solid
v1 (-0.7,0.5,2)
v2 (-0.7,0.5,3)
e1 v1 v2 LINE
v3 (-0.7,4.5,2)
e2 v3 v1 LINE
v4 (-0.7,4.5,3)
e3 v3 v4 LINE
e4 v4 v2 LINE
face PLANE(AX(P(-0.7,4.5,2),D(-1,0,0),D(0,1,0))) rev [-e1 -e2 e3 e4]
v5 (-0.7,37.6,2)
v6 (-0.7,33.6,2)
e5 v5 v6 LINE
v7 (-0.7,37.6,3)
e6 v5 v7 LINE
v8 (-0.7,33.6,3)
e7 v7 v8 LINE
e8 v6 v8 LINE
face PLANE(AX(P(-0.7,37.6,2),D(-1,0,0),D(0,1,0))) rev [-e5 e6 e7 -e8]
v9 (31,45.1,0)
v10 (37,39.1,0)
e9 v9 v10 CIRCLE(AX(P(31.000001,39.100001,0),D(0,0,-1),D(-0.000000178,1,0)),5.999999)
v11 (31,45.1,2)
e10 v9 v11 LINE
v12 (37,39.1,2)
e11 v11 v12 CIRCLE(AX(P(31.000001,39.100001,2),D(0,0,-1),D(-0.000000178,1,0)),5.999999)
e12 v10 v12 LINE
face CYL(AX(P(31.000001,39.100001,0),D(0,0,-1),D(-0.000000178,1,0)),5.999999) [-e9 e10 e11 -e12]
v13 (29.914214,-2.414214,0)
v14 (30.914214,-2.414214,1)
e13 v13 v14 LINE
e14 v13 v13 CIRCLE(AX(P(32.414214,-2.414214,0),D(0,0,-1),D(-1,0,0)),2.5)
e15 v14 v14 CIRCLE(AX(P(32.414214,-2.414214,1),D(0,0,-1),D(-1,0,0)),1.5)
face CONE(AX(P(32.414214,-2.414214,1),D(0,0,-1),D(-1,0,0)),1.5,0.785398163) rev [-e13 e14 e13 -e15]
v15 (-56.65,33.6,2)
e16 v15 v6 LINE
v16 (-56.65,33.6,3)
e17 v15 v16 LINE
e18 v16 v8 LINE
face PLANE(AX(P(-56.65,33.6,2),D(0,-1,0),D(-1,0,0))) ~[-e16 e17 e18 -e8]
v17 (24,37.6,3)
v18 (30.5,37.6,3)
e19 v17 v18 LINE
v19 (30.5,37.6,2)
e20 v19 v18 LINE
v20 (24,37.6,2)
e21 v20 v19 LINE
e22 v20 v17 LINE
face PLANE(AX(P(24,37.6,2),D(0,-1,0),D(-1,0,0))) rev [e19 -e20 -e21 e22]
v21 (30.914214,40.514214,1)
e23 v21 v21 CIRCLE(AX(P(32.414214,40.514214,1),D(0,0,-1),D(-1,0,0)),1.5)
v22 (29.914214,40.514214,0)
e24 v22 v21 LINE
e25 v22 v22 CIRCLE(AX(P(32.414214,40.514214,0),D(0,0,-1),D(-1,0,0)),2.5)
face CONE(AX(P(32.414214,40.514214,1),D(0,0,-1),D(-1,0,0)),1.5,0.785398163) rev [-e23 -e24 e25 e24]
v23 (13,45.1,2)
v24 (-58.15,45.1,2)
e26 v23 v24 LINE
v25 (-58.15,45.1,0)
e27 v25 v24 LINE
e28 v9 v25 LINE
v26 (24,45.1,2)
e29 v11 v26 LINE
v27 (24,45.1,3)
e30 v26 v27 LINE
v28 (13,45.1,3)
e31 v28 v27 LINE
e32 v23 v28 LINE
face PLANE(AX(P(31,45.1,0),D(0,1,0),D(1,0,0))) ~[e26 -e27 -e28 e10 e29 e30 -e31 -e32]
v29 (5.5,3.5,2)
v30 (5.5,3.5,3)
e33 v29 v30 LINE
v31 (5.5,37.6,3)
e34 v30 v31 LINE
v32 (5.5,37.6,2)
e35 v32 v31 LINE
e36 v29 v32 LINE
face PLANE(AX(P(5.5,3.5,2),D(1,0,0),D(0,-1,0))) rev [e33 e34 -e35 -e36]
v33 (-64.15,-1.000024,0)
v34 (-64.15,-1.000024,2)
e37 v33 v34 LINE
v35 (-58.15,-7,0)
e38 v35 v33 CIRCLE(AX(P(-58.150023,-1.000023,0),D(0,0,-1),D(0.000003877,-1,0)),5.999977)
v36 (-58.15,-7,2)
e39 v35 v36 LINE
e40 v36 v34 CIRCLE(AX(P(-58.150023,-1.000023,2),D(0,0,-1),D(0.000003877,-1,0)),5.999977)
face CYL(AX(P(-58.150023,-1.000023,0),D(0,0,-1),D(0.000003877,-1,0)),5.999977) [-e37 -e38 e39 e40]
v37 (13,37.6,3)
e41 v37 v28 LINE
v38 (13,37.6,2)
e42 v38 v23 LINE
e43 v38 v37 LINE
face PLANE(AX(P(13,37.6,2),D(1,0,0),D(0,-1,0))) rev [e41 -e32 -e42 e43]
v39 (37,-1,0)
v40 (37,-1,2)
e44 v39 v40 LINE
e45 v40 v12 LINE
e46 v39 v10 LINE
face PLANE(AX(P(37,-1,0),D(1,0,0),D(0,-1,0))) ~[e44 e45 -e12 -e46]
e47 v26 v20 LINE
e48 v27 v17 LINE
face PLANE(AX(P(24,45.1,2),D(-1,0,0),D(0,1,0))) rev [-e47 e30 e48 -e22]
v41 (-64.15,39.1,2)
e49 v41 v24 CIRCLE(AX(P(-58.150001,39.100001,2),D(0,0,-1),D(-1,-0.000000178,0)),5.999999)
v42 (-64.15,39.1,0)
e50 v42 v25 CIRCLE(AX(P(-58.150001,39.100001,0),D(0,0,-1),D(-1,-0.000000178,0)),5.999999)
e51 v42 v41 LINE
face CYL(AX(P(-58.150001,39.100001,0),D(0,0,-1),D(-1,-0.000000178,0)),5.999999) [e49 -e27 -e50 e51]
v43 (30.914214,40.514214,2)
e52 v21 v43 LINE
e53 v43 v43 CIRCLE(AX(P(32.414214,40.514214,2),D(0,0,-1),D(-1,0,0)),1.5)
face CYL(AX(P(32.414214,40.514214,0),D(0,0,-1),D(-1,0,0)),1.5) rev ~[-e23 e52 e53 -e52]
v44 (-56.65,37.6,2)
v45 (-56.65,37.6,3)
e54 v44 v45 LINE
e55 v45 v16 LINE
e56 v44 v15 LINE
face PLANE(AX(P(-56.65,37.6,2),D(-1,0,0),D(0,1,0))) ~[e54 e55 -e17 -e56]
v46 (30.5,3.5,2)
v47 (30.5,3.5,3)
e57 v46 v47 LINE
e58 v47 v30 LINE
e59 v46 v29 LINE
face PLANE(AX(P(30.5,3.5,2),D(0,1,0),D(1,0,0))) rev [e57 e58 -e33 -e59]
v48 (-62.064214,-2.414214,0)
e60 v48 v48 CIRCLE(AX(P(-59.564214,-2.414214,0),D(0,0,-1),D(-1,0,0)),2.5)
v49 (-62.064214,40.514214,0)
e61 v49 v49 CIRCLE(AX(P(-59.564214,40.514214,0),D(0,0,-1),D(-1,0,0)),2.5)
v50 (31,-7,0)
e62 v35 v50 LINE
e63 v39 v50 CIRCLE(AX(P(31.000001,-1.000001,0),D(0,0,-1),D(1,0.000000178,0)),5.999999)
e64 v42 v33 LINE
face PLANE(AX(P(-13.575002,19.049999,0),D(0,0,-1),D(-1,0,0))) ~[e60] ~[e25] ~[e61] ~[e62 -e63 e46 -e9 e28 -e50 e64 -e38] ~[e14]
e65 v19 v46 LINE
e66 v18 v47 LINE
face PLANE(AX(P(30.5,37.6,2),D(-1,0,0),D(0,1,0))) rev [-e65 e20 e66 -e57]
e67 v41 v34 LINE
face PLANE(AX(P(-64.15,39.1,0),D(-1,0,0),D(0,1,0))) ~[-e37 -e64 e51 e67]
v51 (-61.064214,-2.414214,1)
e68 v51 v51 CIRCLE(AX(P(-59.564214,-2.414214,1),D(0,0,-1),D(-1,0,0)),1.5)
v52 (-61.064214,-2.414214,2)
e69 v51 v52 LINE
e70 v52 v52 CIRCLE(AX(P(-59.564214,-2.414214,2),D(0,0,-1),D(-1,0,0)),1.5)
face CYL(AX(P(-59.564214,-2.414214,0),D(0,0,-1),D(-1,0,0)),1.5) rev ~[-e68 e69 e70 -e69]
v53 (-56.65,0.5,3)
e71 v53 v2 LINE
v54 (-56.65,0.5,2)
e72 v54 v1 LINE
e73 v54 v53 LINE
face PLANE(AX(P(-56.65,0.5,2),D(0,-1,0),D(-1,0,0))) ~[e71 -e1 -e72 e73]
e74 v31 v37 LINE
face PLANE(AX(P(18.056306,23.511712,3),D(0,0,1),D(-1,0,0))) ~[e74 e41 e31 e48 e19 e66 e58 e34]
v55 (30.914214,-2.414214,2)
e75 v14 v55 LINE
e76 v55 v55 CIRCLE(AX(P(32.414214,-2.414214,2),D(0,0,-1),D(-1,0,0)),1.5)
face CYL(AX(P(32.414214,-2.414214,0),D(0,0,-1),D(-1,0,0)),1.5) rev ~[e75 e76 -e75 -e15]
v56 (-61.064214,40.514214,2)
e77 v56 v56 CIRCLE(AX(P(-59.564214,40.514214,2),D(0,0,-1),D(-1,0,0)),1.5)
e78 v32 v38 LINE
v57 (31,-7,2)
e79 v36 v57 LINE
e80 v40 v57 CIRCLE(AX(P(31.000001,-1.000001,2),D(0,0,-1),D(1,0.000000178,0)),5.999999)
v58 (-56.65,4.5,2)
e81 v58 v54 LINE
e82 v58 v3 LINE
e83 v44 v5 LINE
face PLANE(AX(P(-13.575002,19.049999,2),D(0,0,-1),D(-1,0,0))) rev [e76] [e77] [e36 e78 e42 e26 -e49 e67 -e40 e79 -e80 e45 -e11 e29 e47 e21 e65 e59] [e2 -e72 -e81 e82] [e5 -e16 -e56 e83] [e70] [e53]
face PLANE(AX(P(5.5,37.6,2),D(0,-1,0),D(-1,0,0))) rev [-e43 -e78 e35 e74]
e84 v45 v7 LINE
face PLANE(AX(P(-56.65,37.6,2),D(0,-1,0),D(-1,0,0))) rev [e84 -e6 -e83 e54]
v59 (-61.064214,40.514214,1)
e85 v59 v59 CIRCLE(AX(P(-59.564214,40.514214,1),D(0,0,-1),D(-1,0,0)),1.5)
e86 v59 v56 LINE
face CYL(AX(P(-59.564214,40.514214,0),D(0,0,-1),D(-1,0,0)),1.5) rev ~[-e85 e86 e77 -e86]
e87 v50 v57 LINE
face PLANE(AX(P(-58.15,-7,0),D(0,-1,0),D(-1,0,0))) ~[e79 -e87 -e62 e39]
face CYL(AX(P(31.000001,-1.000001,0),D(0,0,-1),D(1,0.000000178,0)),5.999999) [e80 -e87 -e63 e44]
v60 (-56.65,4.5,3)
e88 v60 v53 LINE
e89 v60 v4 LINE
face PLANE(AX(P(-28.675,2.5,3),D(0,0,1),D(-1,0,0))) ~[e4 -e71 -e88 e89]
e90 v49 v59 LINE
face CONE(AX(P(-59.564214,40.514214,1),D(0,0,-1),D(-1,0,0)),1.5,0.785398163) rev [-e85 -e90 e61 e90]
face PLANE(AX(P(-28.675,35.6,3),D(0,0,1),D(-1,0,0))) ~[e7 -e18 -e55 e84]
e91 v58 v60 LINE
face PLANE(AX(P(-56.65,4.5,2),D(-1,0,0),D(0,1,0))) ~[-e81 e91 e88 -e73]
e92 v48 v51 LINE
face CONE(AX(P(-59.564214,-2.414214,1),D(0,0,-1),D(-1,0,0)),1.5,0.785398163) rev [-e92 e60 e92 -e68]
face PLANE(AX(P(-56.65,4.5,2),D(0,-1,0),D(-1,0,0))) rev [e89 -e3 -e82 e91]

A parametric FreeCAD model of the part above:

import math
import FreeCAD as App
import Part
import Sketcher
from FreeCAD import Vector
Q = App.Units.Quantity


def edges_at(feature, points):
    """Names of the edges that pass closest to the given points."""
    edges = feature.Shape.Edges
    near = lambda p: min(range(len(edges)), key=lambda i: edges[i].distToShape(Part.Vertex(*p))[0])
    return sorted({f"Edge{near(p) + 1}" for p in points})

doc = App.newDocument("Part")
body = doc.addObject("PartDesign::Body", "Body")

# Sketch on XY plane
sketch1 = body.newObject("Sketcher::SketchObject", "Sketch")
sketch1.AttachmentSupport = (doc.getObject("XY_Plane"), [""])
sketch1.MapMode = "FlatFace"
sketch1.addGeometry(Part.LineSegment(Vector(-58.1, 45.1, 0), Vector(31, 45.1, 0)), False)
sketch1.addGeometry(Part.ArcOfCircle(Part.Circle(Vector(31, 39.1, 0), Vector(0, 0, 1), 6), math.radians(0), math.radians(90)), False)
sketch1.addGeometry(Part.LineSegment(Vector(37, 39.1, 0), Vector(37, -1, 0)), False)
sketch1.addGeometry(Part.ArcOfCircle(Part.Circle(Vector(31, -1, 0), Vector(0, 0, 1), 6), math.radians(-90), math.radians(0)), False)
sketch1.addGeometry(Part.LineSegment(Vector(31, -7, 0), Vector(-58.1, -7, 0)), False)
sketch1.addGeometry(Part.ArcOfCircle(Part.Circle(Vector(-58.2, -1, 0), Vector(0, 0, 1), 6), math.radians(-180), math.radians(-90)), False)
sketch1.addGeometry(Part.LineSegment(Vector(-64.2, -1, 0), Vector(-64.2, 39.1, 0)), False)
sketch1.addGeometry(Part.ArcOfCircle(Part.Circle(Vector(-58.2, 39.1, 0), Vector(0, 0, 1), 6), math.radians(90), math.radians(180)), False)
sketch1.addGeometry(Part.Circle(Vector(-59.6, -2.4, 0), Vector(0, 0, 1), 1.5), False)
sketch1.addGeometry(Part.Circle(Vector(32.4, -2.4, 0), Vector(0, 0, 1), 1.5), False)
sketch1.addGeometry(Part.Circle(Vector(-59.6, 40.5, 0), Vector(0, 0, 1), 1.5), False)
sketch1.addGeometry(Part.Circle(Vector(32.4, 40.5, 0), Vector(0, 0, 1), 1.5), False)
sketch1.addConstraint(Sketcher.Constraint("Tangent", 0, 2, 1, 2))
sketch1.addConstraint(Sketcher.Constraint("Tangent", 1, 1, 2, 1))
sketch1.addConstraint(Sketcher.Constraint("Tangent", 2, 2, 3, 2))
sketch1.addConstraint(Sketcher.Constraint("Tangent", 3, 1, 4, 1))
sketch1.addConstraint(Sketcher.Constraint("Coincident", 4, 2, 5, 2))
sketch1.addConstraint(Sketcher.Constraint("Tangent", 5, 1, 6, 1))
sketch1.addConstraint(Sketcher.Constraint("Tangent", 6, 2, 7, 2))
sketch1.addConstraint(Sketcher.Constraint("Tangent", 7, 1, 0, 1))
sketch1.addConstraint(Sketcher.Constraint("Horizontal", 0))
sketch1.addConstraint(Sketcher.Constraint("Vertical", 2))
sketch1.addConstraint(Sketcher.Constraint("Horizontal", 4))
sketch1.addConstraint(Sketcher.Constraint("Vertical", 6))
sketch1.addConstraint(Sketcher.Constraint("Equal", 1, 3))
sketch1.addConstraint(Sketcher.Constraint("Equal", 3, 7))
sketch1.addConstraint(Sketcher.Constraint("Equal", 8, 9))
sketch1.addConstraint(Sketcher.Constraint("Equal", 9, 10))
sketch1.addConstraint(Sketcher.Constraint("Equal", 10, 11))
sketch1.addConstraint(Sketcher.Constraint("Horizontal", 8, 3, 9, 3))
sketch1.addConstraint(Sketcher.Constraint("Horizontal", 10, 3, 11, 3))
sketch1.addConstraint(Sketcher.Constraint("Vertical", 8, 3, 10, 3))
sketch1.addConstraint(Sketcher.Constraint("Vertical", 9, 3, 11, 3))
sketch1.addConstraint(Sketcher.Constraint("Vertical", 7, 3, 4, 2))
sketch1.addConstraint(Sketcher.Constraint("Diameter", 8, Q("3 mm")))
sketch1.addConstraint(Sketcher.Constraint("Radius", 1, Q("5.999999 mm")))
sketch1.addConstraint(Sketcher.Constraint("DistanceY", 2, 2, 2, 1, Q("40.1 mm")))
sketch1.addConstraint(Sketcher.Constraint("DistanceX", -1, 1, 1, 3, Q("31.000001 mm")))
sketch1.addConstraint(Sketcher.Constraint("DistanceY", 3, 3, -1, 1, Q("1.000001 mm")))
sketch1.addConstraint(Sketcher.Constraint("DistanceX", 0, 1, 0, 2, Q("89.15 mm")))
sketch1.addConstraint(Sketcher.Constraint("Radius", 5, Q("5.999977 mm")))
sketch1.addConstraint(Sketcher.Constraint("DistanceX", 8, 3, 5, 3, Q("1.414191 mm")))
sketch1.addConstraint(Sketcher.Constraint("DistanceY", 8, 3, 5, 3, Q("1.414191 mm")))
sketch1.addConstraint(Sketcher.Constraint("DistanceX", 8, 3, 9, 3, Q("91.978428 mm")))
sketch1.addConstraint(Sketcher.Constraint("DistanceY", 8, 3, 10, 3, Q("42.928428 mm")))
pad1 = body.newObject("PartDesign::Pad", "Pad")
pad1.Profile = sketch1
pad1.Length = 2
pad1.Reversed = True

# Sketch on XY plane
sketch2 = body.newObject("Sketcher::SketchObject", "Sketch001")
sketch2.AttachmentSupport = (doc.getObject("XY_Plane"), [""])
sketch2.MapMode = "FlatFace"
sketch2.AttachmentOffset = App.Placement(Vector(0, 0, -2), App.Rotation())
sketch2.addGeometry(Part.LineSegment(Vector(-56.6, 0.5, 0), Vector(-56.6, 4.5, 0)), False)
sketch2.addGeometry(Part.LineSegment(Vector(-56.6, 4.5, 0), Vector(-0.7, 4.5, 0)), False)
sketch2.addGeometry(Part.LineSegment(Vector(-0.7, 4.5, 0), Vector(-0.7, 0.5, 0)), False)
sketch2.addGeometry(Part.LineSegment(Vector(-0.7, 0.5, 0), Vector(-56.6, 0.5, 0)), False)
sketch2.addGeometry(Part.LineSegment(Vector(-56.6, 33.6, 0), Vector(-56.6, 37.6, 0)), False)
sketch2.addGeometry(Part.LineSegment(Vector(-56.6, 37.6, 0), Vector(-0.7, 37.6, 0)), False)
sketch2.addGeometry(Part.LineSegment(Vector(-0.7, 37.6, 0), Vector(-0.7, 33.6, 0)), False)
sketch2.addGeometry(Part.LineSegment(Vector(-0.7, 33.6, 0), Vector(-56.6, 33.6, 0)), False)
sketch2.addGeometry(Part.LineSegment(Vector(5.5, 37.6, 0), Vector(13, 37.6, 0)), False)
sketch2.addGeometry(Part.LineSegment(Vector(13, 37.6, 0), Vector(13, 45.1, 0)), False)
sketch2.addGeometry(Part.LineSegment(Vector(13, 45.1, 0), Vector(24, 45.1, 0)), False)
sketch2.addGeometry(Part.LineSegment(Vector(24, 45.1, 0), Vector(24, 37.6, 0)), False)
sketch2.addGeometry(Part.LineSegment(Vector(24, 37.6, 0), Vector(30.5, 37.6, 0)), False)
sketch2.addGeometry(Part.LineSegment(Vector(30.5, 37.6, 0), Vector(30.5, 3.5, 0)), False)
sketch2.addGeometry(Part.LineSegment(Vector(30.5, 3.5, 0), Vector(5.5, 3.5, 0)), False)
sketch2.addGeometry(Part.LineSegment(Vector(5.5, 3.5, 0), Vector(5.5, 37.6, 0)), False)
sketch2.addConstraint(Sketcher.Constraint("Coincident", 0, 2, 1, 1))
sketch2.addConstraint(Sketcher.Constraint("Coincident", 1, 2, 2, 1))
sketch2.addConstraint(Sketcher.Constraint("Coincident", 2, 2, 3, 1))
sketch2.addConstraint(Sketcher.Constraint("Coincident", 3, 2, 0, 1))
sketch2.addConstraint(Sketcher.Constraint("Coincident", 4, 2, 5, 1))
sketch2.addConstraint(Sketcher.Constraint("Coincident", 5, 2, 6, 1))
sketch2.addConstraint(Sketcher.Constraint("Coincident", 6, 2, 7, 1))
sketch2.addConstraint(Sketcher.Constraint("Coincident", 7, 2, 4, 1))
sketch2.addConstraint(Sketcher.Constraint("Coincident", 8, 2, 9, 1))
sketch2.addConstraint(Sketcher.Constraint("Coincident", 9, 2, 10, 1))
sketch2.addConstraint(Sketcher.Constraint("Coincident", 10, 2, 11, 1))
sketch2.addConstraint(Sketcher.Constraint("Coincident", 11, 2, 12, 1))
sketch2.addConstraint(Sketcher.Constraint("Coincident", 12, 2, 13, 1))
sketch2.addConstraint(Sketcher.Constraint("Coincident", 13, 2, 14, 1))
sketch2.addConstraint(Sketcher.Constraint("Coincident", 14, 2, 15, 1))
sketch2.addConstraint(Sketcher.Constraint("Coincident", 15, 2, 8, 1))
sketch2.addConstraint(Sketcher.Constraint("Vertical", 0))
sketch2.addConstraint(Sketcher.Constraint("Horizontal", 1))
sketch2.addConstraint(Sketcher.Constraint("Vertical", 2))
sketch2.addConstraint(Sketcher.Constraint("Horizontal", 3))
sketch2.addConstraint(Sketcher.Constraint("Vertical", 4))
sketch2.addConstraint(Sketcher.Constraint("Horizontal", 5))
sketch2.addConstraint(Sketcher.Constraint("Vertical", 6))
sketch2.addConstraint(Sketcher.Constraint("Horizontal", 7))
sketch2.addConstraint(Sketcher.Constraint("Horizontal", 8))
sketch2.addConstraint(Sketcher.Constraint("Vertical", 9))
sketch2.addConstraint(Sketcher.Constraint("Horizontal", 10))
sketch2.addConstraint(Sketcher.Constraint("Vertical", 11))
sketch2.addConstraint(Sketcher.Constraint("Horizontal", 12))
sketch2.addConstraint(Sketcher.Constraint("Vertical", 13))
sketch2.addConstraint(Sketcher.Constraint("Horizontal", 14))
sketch2.addConstraint(Sketcher.Constraint("Vertical", 15))
sketch2.addConstraint(Sketcher.Constraint("Horizontal", 5, 2, 8, 2))
sketch2.addConstraint(Sketcher.Constraint("Horizontal", 8, 2, 11, 2))
sketch2.addConstraint(Sketcher.Constraint("Vertical", 3, 2, 4, 2))
sketch2.addConstraint(Sketcher.Constraint("Vertical", 2, 2, 5, 2))
sketch2.addConstraint(Sketcher.Constraint("Equal", 2, 4))
sketch2.addConstraint(Sketcher.Constraint("Equal", 8, 9))
sketch2.addConstraint(Sketcher.Constraint("DistanceX", 10, 1, 10, 2, Q("11 mm")))
sketch2.addConstraint(Sketcher.Constraint("DistanceX", 14, 2, 14, 1, Q("25 mm")))
sketch2.addConstraint(Sketcher.Constraint("DistanceY", 0, 1, 0, 2, Q("4 mm")))
sketch2.addConstraint(Sketcher.Constraint("DistanceX", 8, 1, 8, 2, Q("7.5 mm")))
sketch2.addConstraint(Sketcher.Constraint("DistanceY", 13, 2, 13, 1, Q("34.1 mm")))
sketch2.addConstraint(Sketcher.Constraint("DistanceX", -1, 1, 8, 2, Q("13 mm")))
sketch2.addConstraint(Sketcher.Constraint("DistanceY", 13, 2, 1, 2, Q("1 mm")))
sketch2.addConstraint(Sketcher.Constraint("DistanceX", 1, 1, 1, 2, Q("55.95 mm")))
sketch2.addConstraint(Sketcher.Constraint("DistanceY", -1, 1, 0, 2, Q("4.5 mm")))
sketch2.addConstraint(Sketcher.Constraint("DistanceX", 1, 2, -1, 1, Q("0.7 mm")))
pad2 = body.newObject("PartDesign::Pad", "Pad001")
pad2.Profile = sketch2
pad2.Length = 1
pad2.Reversed = True
doc.recompute()

chamfer = body.newObject("PartDesign::Chamfer", "Chamfer")
chamfer.Base = (pad2, edges_at(pad2, [
    (-58.064, -2.414, 0),
    (-58.064, 40.514, 0),
    (33.914, 40.514, 0),
    (33.914, -2.414, 0),
]))
chamfer.Size = 1
body2 = doc.addObject("PartDesign::Body", "Body001")
doc.recompute()

mirroring = doc.addObject("Part::Mirroring", "Mirroring")
mirroring.Source = body
mirroring.Base = Vector(0, 0, 0)
mirroring.Normal = Vector(0, 0, 1)
body2.BaseFeature = mirroring
doc.recompute()
body.Visibility = False
mirroring.Visibility = False

doc.recompute()
